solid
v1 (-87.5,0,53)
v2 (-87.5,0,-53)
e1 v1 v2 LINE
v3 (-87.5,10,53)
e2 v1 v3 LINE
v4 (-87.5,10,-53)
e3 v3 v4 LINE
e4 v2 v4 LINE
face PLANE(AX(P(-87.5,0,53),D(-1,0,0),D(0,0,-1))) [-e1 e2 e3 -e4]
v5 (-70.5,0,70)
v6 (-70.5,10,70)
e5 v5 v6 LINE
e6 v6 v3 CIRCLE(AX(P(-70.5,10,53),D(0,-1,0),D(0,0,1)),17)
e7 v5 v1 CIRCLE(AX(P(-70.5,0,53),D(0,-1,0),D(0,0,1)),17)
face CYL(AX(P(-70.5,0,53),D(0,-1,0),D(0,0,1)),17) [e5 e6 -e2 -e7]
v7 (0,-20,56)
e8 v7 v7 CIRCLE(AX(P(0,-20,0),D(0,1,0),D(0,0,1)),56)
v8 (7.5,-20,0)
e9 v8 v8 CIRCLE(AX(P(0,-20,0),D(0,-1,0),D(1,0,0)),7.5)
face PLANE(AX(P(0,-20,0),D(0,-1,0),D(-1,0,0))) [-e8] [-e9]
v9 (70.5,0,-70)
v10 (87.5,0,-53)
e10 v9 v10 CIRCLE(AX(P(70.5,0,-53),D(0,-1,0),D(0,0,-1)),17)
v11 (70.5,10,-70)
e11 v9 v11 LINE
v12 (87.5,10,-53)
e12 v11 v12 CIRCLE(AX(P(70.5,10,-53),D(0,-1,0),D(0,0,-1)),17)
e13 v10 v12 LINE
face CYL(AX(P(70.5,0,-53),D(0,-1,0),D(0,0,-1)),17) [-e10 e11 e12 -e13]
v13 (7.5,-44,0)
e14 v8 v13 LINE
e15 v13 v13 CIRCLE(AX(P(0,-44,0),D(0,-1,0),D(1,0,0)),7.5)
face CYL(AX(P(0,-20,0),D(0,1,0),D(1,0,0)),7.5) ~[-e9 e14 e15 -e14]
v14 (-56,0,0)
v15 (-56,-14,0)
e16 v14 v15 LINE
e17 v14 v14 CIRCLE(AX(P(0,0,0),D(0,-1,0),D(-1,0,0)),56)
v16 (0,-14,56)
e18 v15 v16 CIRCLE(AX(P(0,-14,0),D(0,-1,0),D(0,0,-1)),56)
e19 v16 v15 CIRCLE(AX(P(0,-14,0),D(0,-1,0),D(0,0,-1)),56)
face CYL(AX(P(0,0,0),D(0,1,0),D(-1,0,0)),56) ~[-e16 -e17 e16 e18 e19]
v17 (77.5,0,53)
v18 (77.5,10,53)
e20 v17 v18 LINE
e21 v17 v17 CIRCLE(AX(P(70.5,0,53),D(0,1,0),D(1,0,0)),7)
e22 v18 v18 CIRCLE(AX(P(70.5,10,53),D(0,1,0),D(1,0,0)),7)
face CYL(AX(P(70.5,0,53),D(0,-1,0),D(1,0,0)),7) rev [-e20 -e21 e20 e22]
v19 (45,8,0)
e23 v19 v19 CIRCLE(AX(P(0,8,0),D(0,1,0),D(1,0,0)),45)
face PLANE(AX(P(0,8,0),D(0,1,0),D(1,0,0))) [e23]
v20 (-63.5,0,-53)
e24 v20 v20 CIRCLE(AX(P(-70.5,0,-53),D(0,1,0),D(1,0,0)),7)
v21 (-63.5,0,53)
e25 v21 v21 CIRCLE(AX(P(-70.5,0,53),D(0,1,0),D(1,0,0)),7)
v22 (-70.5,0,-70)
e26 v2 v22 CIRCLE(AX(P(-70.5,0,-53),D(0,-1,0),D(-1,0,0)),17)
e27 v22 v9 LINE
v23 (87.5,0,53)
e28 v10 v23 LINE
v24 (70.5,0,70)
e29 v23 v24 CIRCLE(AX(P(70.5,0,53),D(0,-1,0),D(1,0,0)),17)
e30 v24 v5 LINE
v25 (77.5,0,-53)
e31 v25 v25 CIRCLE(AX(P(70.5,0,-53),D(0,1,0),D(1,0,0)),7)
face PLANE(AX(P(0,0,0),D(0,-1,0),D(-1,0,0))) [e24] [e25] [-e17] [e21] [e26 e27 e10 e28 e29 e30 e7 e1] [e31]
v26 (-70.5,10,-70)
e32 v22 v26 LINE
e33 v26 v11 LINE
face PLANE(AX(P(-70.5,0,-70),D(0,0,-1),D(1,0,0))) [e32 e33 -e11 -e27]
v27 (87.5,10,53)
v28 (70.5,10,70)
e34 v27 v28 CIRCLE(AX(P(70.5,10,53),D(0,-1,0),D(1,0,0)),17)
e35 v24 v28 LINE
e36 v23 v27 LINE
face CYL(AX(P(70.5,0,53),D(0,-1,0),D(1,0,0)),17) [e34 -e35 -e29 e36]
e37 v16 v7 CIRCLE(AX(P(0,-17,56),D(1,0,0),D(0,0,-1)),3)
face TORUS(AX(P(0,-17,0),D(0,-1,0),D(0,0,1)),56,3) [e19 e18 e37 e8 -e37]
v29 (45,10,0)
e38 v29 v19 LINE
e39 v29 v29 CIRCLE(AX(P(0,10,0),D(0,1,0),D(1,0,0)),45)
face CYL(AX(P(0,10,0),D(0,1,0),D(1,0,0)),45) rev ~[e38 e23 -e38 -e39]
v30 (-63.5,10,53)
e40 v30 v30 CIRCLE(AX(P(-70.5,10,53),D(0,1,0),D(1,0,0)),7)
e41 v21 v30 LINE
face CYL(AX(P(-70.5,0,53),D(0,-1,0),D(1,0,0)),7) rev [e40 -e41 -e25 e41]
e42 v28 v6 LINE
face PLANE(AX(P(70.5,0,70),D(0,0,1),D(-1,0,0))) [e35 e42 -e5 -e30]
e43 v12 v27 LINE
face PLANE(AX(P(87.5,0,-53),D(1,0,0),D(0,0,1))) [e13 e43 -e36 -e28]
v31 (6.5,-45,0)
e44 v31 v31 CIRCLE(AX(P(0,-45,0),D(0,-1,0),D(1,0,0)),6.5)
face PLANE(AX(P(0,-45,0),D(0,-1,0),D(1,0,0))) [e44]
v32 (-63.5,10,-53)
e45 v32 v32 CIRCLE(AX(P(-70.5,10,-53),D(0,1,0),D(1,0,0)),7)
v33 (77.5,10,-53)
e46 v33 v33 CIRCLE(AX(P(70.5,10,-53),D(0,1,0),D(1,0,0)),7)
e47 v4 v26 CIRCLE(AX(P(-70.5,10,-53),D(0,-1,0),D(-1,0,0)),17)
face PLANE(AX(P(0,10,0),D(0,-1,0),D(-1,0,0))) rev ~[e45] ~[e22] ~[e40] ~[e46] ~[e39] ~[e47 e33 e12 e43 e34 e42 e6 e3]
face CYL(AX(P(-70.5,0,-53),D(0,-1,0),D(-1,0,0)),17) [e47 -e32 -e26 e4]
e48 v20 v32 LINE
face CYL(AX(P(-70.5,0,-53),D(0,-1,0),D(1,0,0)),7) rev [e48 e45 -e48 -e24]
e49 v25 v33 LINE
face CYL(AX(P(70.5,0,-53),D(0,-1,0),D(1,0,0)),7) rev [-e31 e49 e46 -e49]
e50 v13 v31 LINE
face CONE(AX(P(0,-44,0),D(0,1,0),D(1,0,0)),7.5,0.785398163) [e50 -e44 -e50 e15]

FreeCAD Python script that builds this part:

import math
import FreeCAD as App
import Part
import Sketcher
Q = App.Units.Quantity


def edges_at(feature, points):
    """Names of the edges that pass closest to the given points."""
    edges = feature.Shape.Edges
    near = lambda p: min(range(len(edges)), key=lambda i: edges[i].distToShape(Part.Vertex(*p))[0])
    return sorted({f"Edge{near(p) + 1}" for p in points})

doc = App.newDocument("Part")
params = doc.addObject("Spreadsheet::Sheet", "Params")
for row, (alias, value) in enumerate([
    ("sketch1_diameter", "14 mm"),
    ("sketch1_radius", "17 mm"),
    ("sketch1_width", "141 mm"),
    ("sketch1_height", "106 mm"),
    ("pad1_length", "10 mm"),
    ("sketch2_diameter", "112 mm"),
    ("pad2_length", "20 mm"),
    ("sketch3_diameter", "6 mm"),
    ("revolution_angle", "360 deg"),
    ("sketch4_diameter", "15 mm"),
    ("pad3_length", "25 mm"),
    ("chamfer_size", "1 mm"),
    ("sketch5_diameter", "90 mm"),
    ("pocket1_length", "2 mm"),
], start=1):
    params.set(f"A{row}", alias)
    params.set(f"B{row}", "=" + value)
    params.setAlias(f"B{row}", alias)

body = doc.addObject("PartDesign::Body", "Body")

sketch1 = body.newObject("Sketcher::SketchObject", "Sketch")
sketch1.AttachmentSupport = (doc.getObject("XZ_Plane"), [""])
sketch1.MapMode = "FlatFace"
sketch1.addGeometry([
    Part.LineSegment(App.Vector(70, -70, 0), App.Vector(-70, -70, 0)),
    Part.ArcOfCircle(Part.Circle(App.Vector(-70, -53, 0), App.Vector(0, 0, 1), 17), math.radians(-180), math.radians(-90)),
    Part.LineSegment(App.Vector(-88, -53, 0), App.Vector(-88, 53, 0)),
    Part.ArcOfCircle(Part.Circle(App.Vector(-70, 53, 0), App.Vector(0, 0, 1), 17), math.radians(90), math.radians(180)),
    Part.LineSegment(App.Vector(-70, 70, 0), App.Vector(70, 70, 0)),
    Part.ArcOfCircle(Part.Circle(App.Vector(70, 53, 0), App.Vector(0, 0, 1), 17), math.radians(0), math.radians(90)),
    Part.LineSegment(App.Vector(88, 53, 0), App.Vector(88, -53, 0)),
    Part.ArcOfCircle(Part.Circle(App.Vector(70, -53, 0), App.Vector(0, 0, 1), 17), math.radians(-90), math.radians(0)),
    Part.Circle(App.Vector(70, 53, 0), App.Vector(0, 0, 1), 7),
    Part.Circle(App.Vector(-70, 53, 0), App.Vector(0, 0, 1), 7),
    Part.Circle(App.Vector(70, -53, 0), App.Vector(0, 0, 1), 7),
    Part.Circle(App.Vector(-70, -53, 0), App.Vector(0, 0, 1), 7),
], False)
sketch1.addConstraint([
    Sketcher.Constraint("Tangent", 0, 2, 1, 2),
    Sketcher.Constraint("Tangent", 1, 1, 2, 1),
    Sketcher.Constraint("Tangent", 2, 2, 3, 2),
    Sketcher.Constraint("Tangent", 3, 1, 4, 1),
    Sketcher.Constraint("Tangent", 4, 2, 5, 2),
    Sketcher.Constraint("Tangent", 5, 1, 6, 1),
    Sketcher.Constraint("Tangent", 6, 2, 7, 2),
    Sketcher.Constraint("Tangent", 7, 1, 0, 1),
    Sketcher.Constraint("Horizontal", 0),
    Sketcher.Constraint("Vertical", 2),
    Sketcher.Constraint("Horizontal", 4),
    Sketcher.Constraint("Vertical", 6),
    Sketcher.Constraint("Coincident", 8, 3, 5, 3),
    Sketcher.Constraint("Coincident", 9, 3, 3, 3),
    Sketcher.Constraint("Coincident", 10, 3, 7, 3),
    Sketcher.Constraint("Coincident", 11, 3, 1, 3),
    Sketcher.Constraint("Equal", 1, 3),
    Sketcher.Constraint("Equal", 3, 5),
    Sketcher.Constraint("Equal", 5, 7),
    Sketcher.Constraint("Equal", 8, 9),
    Sketcher.Constraint("Equal", 9, 10),
    Sketcher.Constraint("Equal", 10, 11),
    Sketcher.Constraint("Symmetric", 1, 3, 5, 3, -1, 1),
    Sketcher.Constraint("Diameter", 8, Q("14 mm")),
    Sketcher.Constraint("Radius", 1, Q("17 mm")),
    Sketcher.Constraint("DistanceX", 0, 2, 0, 1, Q("141 mm")),
    Sketcher.Constraint("DistanceY", 2, 1, 2, 2, Q("106 mm")),
])
sketch1.setExpression("Constraints[23]", "Params.sketch1_diameter")
sketch1.setExpression("Constraints[24]", "Params.sketch1_radius")
sketch1.setExpression("Constraints[25]", "Params.sketch1_width")
sketch1.setExpression("Constraints[26]", "Params.sketch1_height")
pad1 = body.newObject("PartDesign::Pad", "Pad")
pad1.Profile = sketch1
pad1.setExpression("Length", "Params.pad1_length")
pad1.Reversed = True

sketch2 = body.newObject("Sketcher::SketchObject", "Sketch001")
sketch2.AttachmentSupport = (doc.getObject("XZ_Plane"), [""])
sketch2.MapMode = "FlatFace"
sketch2.addGeometry(Part.Circle(App.Vector(0, 0, 0), App.Vector(0, 0, 1), 56), False)
sketch2.addConstraint([
    Sketcher.Constraint("Coincident", 0, 3, -1, 1),
    Sketcher.Constraint("Diameter", 0, Q("112 mm")),
])
sketch2.setExpression("Constraints[1]", "Params.sketch2_diameter")
pad2 = body.newObject("PartDesign::Pad", "Pad001")
pad2.Profile = sketch2
pad2.setExpression("Length", "Params.pad2_length")

sketch3 = body.newObject("Sketcher::SketchObject", "Sketch002")
sketch3.AttachmentSupport = (doc.getObject("YZ_Plane"), [""])
sketch3.MapMode = "FlatFace"
sketch3.addGeometry(Part.Circle(App.Vector(-17, 56, 0), App.Vector(0, 0, 1), 3), False)
sketch3.addConstraint([
    Sketcher.Constraint("Diameter", 0, Q("6 mm")),
    Sketcher.Constraint("DistanceX", 0, 3, -1, 1, Q("17 mm")),
    Sketcher.Constraint("DistanceY", -1, 1, 0, 3, Q("56 mm")),
])
sketch3.setExpression("Constraints[0]", "Params.sketch3_diameter")
revolution = body.newObject("PartDesign::Revolution", "Revolution")
revolution.Profile = sketch3
revolution.ReferenceAxis = (sketch3, ["H_Axis"])
revolution.setExpression("Angle", "Params.revolution_angle")

sketch4 = body.newObject("Sketcher::SketchObject", "Sketch003")
sketch4.AttachmentSupport = (doc.getObject("XZ_Plane"), [""])
sketch4.MapMode = "FlatFace"
sketch4.AttachmentOffset = App.Placement(App.Vector(0, 0, 20), App.Rotation())
sketch4.addGeometry(Part.Circle(App.Vector(0, 0, 0), App.Vector(0, 0, 1), 8), False)
sketch4.addConstraint([
    Sketcher.Constraint("Coincident", 0, 3, -1, 1),
    Sketcher.Constraint("Diameter", 0, Q("15 mm")),
])
sketch4.setExpression("Constraints[1]", "Params.sketch4_diameter")
pad3 = body.newObject("PartDesign::Pad", "Pad002")
pad3.Profile = sketch4
pad3.setExpression("Length", "Params.pad3_length")
doc.recompute()

chamfer = body.newObject("PartDesign::Chamfer", "Chamfer")
chamfer.Base = (pad3, edges_at(pad3, [(-7.5, -45, 0)]))
chamfer.setExpression("Size", "Params.chamfer_size")

sketch5 = body.newObject("Sketcher::SketchObject", "Sketch004")
sketch5.AttachmentSupport = (doc.getObject("XZ_Plane"), [""])
sketch5.MapMode = "FlatFace"
sketch5.AttachmentOffset = App.Placement(App.Vector(0, 0, -10), App.Rotation())
sketch5.addGeometry(Part.Circle(App.Vector(0, 0, 0), App.Vector(0, 0, 1), 45), False)
sketch5.addConstraint([
    Sketcher.Constraint("Coincident", 0, 3, -1, 1),
    Sketcher.Constraint("Diameter", 0, Q("90 mm")),
])
sketch5.setExpression("Constraints[1]", "Params.sketch5_diameter")
pocket1 = body.newObject("PartDesign::Pocket", "Pocket")
pocket1.Profile = sketch5
pocket1.setExpression("Length", "Params.pocket1_length")
pocket1.Reversed = True

doc.recompute()
